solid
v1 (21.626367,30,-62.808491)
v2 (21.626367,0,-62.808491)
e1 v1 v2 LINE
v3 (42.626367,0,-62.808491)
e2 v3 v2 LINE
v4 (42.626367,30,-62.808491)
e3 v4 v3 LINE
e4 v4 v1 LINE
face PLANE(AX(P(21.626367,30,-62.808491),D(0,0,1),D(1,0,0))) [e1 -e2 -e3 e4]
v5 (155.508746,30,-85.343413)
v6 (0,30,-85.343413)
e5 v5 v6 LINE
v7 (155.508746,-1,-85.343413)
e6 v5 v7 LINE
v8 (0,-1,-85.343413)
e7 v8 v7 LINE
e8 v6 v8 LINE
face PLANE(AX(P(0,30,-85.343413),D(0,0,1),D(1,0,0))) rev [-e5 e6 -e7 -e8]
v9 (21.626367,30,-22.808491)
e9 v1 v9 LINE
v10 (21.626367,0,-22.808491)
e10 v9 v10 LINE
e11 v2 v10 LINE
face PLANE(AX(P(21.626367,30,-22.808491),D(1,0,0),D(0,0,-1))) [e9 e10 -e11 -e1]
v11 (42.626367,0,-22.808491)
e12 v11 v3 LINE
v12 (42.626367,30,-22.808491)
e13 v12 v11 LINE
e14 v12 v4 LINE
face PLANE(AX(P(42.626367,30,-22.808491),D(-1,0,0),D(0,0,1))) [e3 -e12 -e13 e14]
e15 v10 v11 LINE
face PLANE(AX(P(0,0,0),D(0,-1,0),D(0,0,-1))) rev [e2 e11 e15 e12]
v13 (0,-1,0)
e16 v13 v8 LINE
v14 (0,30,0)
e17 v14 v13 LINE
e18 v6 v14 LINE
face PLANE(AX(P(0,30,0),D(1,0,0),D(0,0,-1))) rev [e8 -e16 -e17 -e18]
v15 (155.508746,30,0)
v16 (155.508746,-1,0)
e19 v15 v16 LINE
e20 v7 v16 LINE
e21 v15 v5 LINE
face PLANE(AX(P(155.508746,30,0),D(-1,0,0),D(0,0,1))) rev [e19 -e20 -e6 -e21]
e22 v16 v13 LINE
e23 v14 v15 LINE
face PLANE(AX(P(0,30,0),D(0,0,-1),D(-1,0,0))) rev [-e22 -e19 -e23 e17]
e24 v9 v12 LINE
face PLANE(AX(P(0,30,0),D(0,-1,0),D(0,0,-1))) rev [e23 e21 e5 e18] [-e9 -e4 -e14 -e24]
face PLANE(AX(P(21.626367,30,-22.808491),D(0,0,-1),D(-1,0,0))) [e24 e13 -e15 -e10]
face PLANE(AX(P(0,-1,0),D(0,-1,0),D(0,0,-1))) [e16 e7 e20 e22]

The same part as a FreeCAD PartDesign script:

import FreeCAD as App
import Part
import Sketcher
from FreeCAD import Vector


def add_polygon(sketch, points):
    """Adds a closed chain of lines whose ends are joined by coincident constraints."""
    first, n = sketch.GeometryCount, len(points)
    for a, b in zip(points, points[1:] + points[:1]):
        sketch.addGeometry(Part.LineSegment(App.Vector(*a, 0), App.Vector(*b, 0)), False)
    for i in range(n):
        sketch.addConstraint(Sketcher.Constraint("Coincident", first + i, 2, first + (i + 1) % n, 1))

doc = App.newDocument("Part")
params = doc.addObject("Spreadsheet::Sheet", "Params")
for row, (alias, value) in enumerate([
    ("sketch1_width", "21 mm"),
    ("sketch1_height", "40 mm"),
    ("pad1_length", "30 mm"),
    ("pad2_length", "1 mm"),
], start=1):
    params.set(f"A{row}", alias)
    params.set(f"B{row}", "=" + value)
    params.setAlias(f"B{row}", alias)

body = doc.addObject("PartDesign::Body", "Body")

# Sketch on XZ plane
sketch1 = body.newObject("Sketcher::SketchObject", "Sketch")
sketch1.AttachmentSupport = (doc.getObject("XZ_Plane"), [""])
sketch1.MapMode = "FlatFace"
add_polygon(sketch1, [(0, -85.343413), (0, 0), (155.508746, 0), (155.508746, -85.343413)])  # lines 0-3
add_polygon(sketch1, [(42.626367, -22.808491), (21.626367, -22.808491), (21.626367, -62.808491), (42.626367, -62.808491)])  # lines 4-7
sketch1.addConstraint([
    Sketcher.Constraint("Vertical", 0),
    Sketcher.Constraint("Horizontal", 1),
    Sketcher.Constraint("Vertical", 2),
    Sketcher.Constraint("Horizontal", 3),
    Sketcher.Constraint("Horizontal", 4),
    Sketcher.Constraint("Vertical", 5),
    Sketcher.Constraint("Horizontal", 6),
    Sketcher.Constraint("Vertical", 7),
    Sketcher.Constraint("Coincident", 0, 2, -1, 1),
    Sketcher.Constraint("DistanceX", 4, 2, 4, 1, 21.0),
    Sketcher.Constraint("DistanceY", 5, 2, 5, 1, 40.0),
    Sketcher.Constraint("DistanceX", 1, 1, 1, 2, 155.508746),
    Sketcher.Constraint("DistanceY", 0, 1, 0, 2, 85.343413),
    Sketcher.Constraint("DistanceY", 4, 2, -1, 1, 22.808491),
    Sketcher.Constraint("DistanceX", 4, 2, 1, 2, 133.882379),
])
sketch1.setExpression("Constraints[17]", "Params.sketch1_width")
sketch1.setExpression("Constraints[18]", "Params.sketch1_height")
pad1 = body.newObject("PartDesign::Pad", "Pad")
pad1.Profile = sketch1
pad1.setExpression("Length", "Params.pad1_length")
pad1.Reversed = True

# Sketch on XZ plane
sketch2 = body.newObject("Sketcher::SketchObject", "Sketch001")
sketch2.AttachmentSupport = (doc.getObject("XZ_Plane"), [""])
sketch2.MapMode = "FlatFace"
add_polygon(sketch2, [(0, 0), (0, -85.343413), (155.508746, -85.343413), (155.508746, 0)])  # lines 0-3
sketch2.addConstraint([
    Sketcher.Constraint("Vertical", 0),
    Sketcher.Constraint("Horizontal", 1),
    Sketcher.Constraint("Vertical", 2),
    Sketcher.Constraint("Horizontal", 3),
    Sketcher.Constraint("Coincident", 3, 2, -1, 1),
    Sketcher.Constraint("DistanceX", 1, 1, 1, 2, 155.508746),
    Sketcher.Constraint("DistanceY", 0, 2, 0, 1, 85.343413),
])
pad2 = body.newObject("PartDesign::Pad", "Pad001")
pad2.Profile = sketch2
pad2.setExpression("Length", "Params.pad2_length")

doc.recompute()
